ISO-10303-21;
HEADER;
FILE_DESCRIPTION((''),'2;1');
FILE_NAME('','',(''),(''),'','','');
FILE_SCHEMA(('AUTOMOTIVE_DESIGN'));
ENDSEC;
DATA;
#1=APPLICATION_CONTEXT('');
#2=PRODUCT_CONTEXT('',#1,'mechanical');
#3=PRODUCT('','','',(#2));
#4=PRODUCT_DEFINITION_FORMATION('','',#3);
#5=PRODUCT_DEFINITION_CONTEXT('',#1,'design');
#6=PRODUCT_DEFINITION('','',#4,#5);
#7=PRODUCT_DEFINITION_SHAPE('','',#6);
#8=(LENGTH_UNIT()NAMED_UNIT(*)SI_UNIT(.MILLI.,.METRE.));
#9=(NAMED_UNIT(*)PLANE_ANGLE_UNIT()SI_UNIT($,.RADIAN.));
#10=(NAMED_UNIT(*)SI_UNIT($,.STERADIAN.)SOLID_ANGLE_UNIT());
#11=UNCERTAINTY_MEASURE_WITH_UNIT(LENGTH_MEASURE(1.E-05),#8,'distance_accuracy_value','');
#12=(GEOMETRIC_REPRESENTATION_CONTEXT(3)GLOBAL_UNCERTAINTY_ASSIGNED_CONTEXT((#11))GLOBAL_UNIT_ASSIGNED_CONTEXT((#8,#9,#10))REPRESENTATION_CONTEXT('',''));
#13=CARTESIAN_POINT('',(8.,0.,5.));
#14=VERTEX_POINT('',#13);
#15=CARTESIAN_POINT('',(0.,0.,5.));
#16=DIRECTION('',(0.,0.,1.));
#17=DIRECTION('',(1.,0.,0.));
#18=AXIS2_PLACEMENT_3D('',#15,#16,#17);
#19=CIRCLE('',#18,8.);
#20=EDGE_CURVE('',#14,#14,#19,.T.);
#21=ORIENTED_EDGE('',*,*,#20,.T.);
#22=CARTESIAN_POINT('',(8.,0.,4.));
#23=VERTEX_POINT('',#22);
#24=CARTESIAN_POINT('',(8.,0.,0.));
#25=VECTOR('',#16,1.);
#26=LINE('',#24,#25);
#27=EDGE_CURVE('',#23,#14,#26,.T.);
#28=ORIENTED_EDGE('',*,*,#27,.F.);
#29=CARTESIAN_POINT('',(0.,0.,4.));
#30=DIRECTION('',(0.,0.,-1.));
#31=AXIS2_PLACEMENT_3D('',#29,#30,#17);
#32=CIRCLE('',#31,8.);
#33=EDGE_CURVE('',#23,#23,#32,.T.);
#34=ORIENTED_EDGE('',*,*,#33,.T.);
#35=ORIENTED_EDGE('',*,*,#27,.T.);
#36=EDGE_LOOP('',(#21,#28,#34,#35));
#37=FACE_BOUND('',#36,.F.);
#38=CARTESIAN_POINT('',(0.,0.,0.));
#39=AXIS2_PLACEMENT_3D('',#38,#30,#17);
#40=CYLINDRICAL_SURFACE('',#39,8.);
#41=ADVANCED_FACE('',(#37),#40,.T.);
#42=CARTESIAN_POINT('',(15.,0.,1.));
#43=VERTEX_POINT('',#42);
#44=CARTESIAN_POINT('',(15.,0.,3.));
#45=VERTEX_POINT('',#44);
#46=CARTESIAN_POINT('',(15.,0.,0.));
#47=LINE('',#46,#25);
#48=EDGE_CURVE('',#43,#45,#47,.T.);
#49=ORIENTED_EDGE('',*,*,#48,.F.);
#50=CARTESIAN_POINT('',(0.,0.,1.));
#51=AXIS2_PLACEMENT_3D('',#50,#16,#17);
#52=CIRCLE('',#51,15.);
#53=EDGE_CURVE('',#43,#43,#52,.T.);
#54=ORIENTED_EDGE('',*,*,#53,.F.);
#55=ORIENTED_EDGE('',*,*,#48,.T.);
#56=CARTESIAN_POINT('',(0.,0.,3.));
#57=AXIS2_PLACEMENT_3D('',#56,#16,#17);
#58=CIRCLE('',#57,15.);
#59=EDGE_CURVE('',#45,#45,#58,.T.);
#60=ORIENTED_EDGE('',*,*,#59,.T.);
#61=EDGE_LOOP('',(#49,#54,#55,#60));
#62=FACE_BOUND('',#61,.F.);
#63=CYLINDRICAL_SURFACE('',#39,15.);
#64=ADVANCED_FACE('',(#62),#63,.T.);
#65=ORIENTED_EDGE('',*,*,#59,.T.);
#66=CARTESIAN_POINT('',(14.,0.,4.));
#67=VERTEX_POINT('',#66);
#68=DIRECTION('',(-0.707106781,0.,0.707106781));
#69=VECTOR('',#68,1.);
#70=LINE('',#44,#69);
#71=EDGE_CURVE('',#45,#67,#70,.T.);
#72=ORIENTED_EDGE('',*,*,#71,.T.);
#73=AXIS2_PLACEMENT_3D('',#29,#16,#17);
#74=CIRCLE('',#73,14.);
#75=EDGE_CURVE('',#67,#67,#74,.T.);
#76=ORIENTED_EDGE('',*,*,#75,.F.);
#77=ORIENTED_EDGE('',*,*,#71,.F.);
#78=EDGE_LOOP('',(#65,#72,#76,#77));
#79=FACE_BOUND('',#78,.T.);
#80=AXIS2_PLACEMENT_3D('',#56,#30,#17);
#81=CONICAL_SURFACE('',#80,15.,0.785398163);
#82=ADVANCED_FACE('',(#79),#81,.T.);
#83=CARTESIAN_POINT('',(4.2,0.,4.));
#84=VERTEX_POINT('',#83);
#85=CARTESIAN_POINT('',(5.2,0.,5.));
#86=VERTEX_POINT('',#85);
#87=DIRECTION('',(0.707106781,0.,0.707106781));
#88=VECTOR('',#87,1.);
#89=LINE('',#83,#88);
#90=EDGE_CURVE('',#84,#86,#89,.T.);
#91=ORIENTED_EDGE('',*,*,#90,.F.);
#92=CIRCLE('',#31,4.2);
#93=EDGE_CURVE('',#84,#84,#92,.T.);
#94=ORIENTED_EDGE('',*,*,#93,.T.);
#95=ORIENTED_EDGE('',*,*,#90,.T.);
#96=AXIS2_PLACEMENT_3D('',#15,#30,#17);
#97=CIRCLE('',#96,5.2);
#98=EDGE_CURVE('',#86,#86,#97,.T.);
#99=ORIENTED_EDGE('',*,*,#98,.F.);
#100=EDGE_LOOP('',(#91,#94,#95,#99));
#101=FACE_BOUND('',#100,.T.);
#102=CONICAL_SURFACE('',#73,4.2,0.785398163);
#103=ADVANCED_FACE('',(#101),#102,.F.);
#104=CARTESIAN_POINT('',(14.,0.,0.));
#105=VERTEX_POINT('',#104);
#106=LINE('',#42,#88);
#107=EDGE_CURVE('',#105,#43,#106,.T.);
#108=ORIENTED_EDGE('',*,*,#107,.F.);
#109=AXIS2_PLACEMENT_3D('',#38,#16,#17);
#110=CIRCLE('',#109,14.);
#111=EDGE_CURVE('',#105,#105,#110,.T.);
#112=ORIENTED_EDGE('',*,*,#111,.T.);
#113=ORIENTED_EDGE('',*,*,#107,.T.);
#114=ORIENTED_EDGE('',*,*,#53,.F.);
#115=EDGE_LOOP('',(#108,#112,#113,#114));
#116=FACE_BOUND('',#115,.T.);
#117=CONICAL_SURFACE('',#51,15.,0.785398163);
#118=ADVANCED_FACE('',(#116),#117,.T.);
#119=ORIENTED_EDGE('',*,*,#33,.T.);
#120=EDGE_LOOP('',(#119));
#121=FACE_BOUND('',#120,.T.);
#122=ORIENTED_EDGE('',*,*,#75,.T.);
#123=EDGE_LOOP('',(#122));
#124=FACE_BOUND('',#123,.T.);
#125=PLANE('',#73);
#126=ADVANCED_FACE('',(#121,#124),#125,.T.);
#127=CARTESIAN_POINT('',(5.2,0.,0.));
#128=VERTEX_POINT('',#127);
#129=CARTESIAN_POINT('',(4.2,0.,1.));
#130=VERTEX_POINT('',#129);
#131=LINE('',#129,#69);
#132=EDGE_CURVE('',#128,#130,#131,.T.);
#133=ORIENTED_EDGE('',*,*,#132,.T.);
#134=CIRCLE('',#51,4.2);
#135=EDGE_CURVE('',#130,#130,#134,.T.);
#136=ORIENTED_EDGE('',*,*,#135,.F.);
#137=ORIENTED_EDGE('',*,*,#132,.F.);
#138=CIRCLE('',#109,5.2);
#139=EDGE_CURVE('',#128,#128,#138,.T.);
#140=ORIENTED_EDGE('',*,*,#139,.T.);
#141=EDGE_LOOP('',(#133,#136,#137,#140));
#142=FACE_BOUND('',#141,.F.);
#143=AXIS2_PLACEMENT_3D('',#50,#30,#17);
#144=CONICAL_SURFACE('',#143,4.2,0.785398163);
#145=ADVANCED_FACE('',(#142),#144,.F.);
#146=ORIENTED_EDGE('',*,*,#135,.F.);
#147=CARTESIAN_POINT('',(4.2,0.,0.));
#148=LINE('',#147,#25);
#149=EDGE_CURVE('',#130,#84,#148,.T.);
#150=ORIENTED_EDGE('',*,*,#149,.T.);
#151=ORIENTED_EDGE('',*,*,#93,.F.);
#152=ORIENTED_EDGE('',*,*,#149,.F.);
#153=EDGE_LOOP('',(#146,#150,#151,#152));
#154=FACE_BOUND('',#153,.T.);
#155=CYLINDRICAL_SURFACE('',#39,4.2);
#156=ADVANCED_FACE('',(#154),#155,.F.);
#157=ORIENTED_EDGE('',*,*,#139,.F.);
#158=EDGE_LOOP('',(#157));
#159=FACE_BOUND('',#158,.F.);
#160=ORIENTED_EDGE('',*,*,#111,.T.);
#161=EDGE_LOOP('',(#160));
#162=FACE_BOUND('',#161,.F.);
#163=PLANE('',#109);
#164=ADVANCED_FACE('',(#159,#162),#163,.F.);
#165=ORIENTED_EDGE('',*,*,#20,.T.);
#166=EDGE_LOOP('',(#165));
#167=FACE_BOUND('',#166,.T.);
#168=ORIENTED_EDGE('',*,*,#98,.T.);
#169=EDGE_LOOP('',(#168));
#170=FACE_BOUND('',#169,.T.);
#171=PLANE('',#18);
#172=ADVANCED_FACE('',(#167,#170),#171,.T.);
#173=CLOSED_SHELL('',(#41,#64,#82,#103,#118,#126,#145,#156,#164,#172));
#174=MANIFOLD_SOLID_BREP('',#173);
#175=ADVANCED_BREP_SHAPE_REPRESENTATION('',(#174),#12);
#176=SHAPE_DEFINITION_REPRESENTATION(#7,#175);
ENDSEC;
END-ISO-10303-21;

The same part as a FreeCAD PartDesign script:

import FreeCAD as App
import Part
import Sketcher


def edges_at(feature, points):
    """Names of the edges that pass closest to the given points."""
    edges = feature.Shape.Edges
    near = lambda p: min(range(len(edges)), key=lambda i: edges[i].distToShape(Part.Vertex(*p))[0])
    return sorted({f"Edge{near(p) + 1}" for p in points})

doc = App.newDocument("Part")
params = doc.addObject("Spreadsheet::Sheet", "Params")
for row, (alias, value) in enumerate([
    ("sketch1_diameter", "30 mm"),
    ("pad1_length", "4 mm"),
    ("sketch2_diameter", "16 mm"),
    ("pad2_length", "5 mm"),
    ("sketch3_diameter", "8.4 mm"),
    ("pocket1_length", "10 mm"),
    ("chamfer_size", "1 mm"),
    ("chamfer2_size", "1 mm"),
], start=1):
    params.set(f"A{row}", alias)
    params.set(f"B{row}", "=" + value)
    params.setAlias(f"B{row}", alias)

body = doc.addObject("PartDesign::Body", "Body")

sketch1 = body.newObject("Sketcher::SketchObject", "Sketch")
sketch1.AttachmentSupport = (doc.getObject("XY_Plane"), [""])
sketch1.MapMode = "FlatFace"
sketch1.addGeometry(Part.Circle(App.Vector(0, 0, 0), App.Vector(0, 0, 1), 15), False)
sketch1.addConstraint([
    Sketcher.Constraint("Coincident", 0, 3, -1, 1),
    Sketcher.Constraint("Diameter", 0, 30.0),
])
sketch1.setExpression("Constraints[1]", "Params.sketch1_diameter")
pad1 = body.newObject("PartDesign::Pad", "Pad")
pad1.Profile = sketch1
pad1.setExpression("Length", "Params.pad1_length")

sketch2 = body.newObject("Sketcher::SketchObject", "Sketch001")
sketch2.AttachmentSupport = (doc.getObject("XY_Plane"), [""])
sketch2.MapMode = "FlatFace"
sketch2.addGeometry(Part.Circle(App.Vector(0, 0, 0), App.Vector(0, 0, 1), 8), False)
sketch2.addConstraint([
    Sketcher.Constraint("Coincident", 0, 3, -1, 1),
    Sketcher.Constraint("Diameter", 0, 16.0),
])
sketch2.setExpression("Constraints[1]", "Params.sketch2_diameter")
pad2 = body.newObject("PartDesign::Pad", "Pad001")
pad2.Profile = sketch2
pad2.setExpression("Length", "Params.pad2_length")

sketch3 = body.newObject("Sketcher::SketchObject", "Sketch002")
sketch3.AttachmentSupport = (doc.getObject("XY_Plane"), [""])
sketch3.MapMode = "FlatFace"
sketch3.addGeometry(Part.Circle(App.Vector(0, 0, 0), App.Vector(0, 0, 1), 4.2), False)
sketch3.addConstraint([
    Sketcher.Constraint("Coincident", 0, 3, -1, 1),
    Sketcher.Constraint("Diameter", 0, 8.4),
])
sketch3.setExpression("Constraints[1]", "Params.sketch3_diameter")
pocket1 = body.newObject("PartDesign::Pocket", "Pocket")
pocket1.Profile = sketch3
pocket1.setExpression("Length", "Params.pocket1_length")
pocket1.Reversed = True
doc.recompute()

chamfer = body.newObject("PartDesign::Chamfer", "Chamfer")
chamfer.Base = (pocket1, edges_at(pocket1, [(-15, 0, 4), (15, 0, 2), (-15, 0, 0)]))
chamfer.setExpression("Size", "Params.chamfer_size")
doc.recompute()

chamfer2 = body.newObject("PartDesign::Chamfer", "Chamfer001")
chamfer2.Base = (chamfer, edges_at(chamfer, [(-4.2, 0, 5), (4.2, 0, 2.5), (-4.2, 0, 0)]))
chamfer2.setExpression("Size", "Params.chamfer2_size")

doc.recompute()
